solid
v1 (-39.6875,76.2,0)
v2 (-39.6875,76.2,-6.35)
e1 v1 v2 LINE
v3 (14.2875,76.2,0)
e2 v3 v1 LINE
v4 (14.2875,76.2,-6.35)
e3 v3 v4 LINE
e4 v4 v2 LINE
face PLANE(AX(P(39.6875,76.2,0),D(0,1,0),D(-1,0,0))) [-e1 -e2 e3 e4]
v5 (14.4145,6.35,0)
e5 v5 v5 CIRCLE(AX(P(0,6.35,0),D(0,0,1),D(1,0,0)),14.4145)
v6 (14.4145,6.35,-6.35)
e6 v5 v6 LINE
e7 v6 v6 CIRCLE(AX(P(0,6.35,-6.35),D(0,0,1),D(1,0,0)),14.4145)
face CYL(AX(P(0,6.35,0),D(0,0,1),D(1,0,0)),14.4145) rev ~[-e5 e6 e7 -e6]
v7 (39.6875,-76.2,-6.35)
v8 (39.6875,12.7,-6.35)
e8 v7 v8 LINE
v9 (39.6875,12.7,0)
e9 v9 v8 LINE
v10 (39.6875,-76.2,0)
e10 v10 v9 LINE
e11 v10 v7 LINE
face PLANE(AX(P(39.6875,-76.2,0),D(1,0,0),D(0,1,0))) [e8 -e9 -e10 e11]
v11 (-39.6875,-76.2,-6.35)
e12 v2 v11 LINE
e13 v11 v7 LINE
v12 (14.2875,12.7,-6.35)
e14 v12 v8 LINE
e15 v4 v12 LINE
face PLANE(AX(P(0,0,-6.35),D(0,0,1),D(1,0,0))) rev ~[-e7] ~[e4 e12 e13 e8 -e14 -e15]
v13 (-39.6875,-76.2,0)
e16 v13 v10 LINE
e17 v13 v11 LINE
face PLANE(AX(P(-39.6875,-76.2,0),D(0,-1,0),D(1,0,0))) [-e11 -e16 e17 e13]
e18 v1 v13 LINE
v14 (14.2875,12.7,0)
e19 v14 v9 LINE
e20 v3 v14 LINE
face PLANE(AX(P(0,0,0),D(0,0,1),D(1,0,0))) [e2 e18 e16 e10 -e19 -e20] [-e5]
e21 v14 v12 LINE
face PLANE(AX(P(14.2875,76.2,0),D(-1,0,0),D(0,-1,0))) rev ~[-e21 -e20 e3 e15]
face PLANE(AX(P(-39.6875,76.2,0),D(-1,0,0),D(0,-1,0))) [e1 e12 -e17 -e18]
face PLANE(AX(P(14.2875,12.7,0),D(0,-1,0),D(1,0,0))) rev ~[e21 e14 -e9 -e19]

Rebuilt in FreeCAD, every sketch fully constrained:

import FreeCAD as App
import Part
import Sketcher

V = App.Vector
Q = App.Units.Quantity

doc = App.newDocument("Part")
params = doc.addObject("Spreadsheet::Sheet", "Params")
for row, (alias, value) in enumerate([
    ("sketch1_height", "6 in"),
    ("sketch1_width", "3.125 in"),
    ("pad1_length", "0.25 in"),
    ("sketch2_diameter", "1.135 in"),
    ("sketch3_width", "1 in"),
    ("sketch3_height", "2.5 in"),
], start=1):
    params.set(f"A{row}", alias)
    params.set(f"B{row}", "=" + value)
    params.setAlias(f"B{row}", alias)

body = doc.addObject("PartDesign::Body", "Body")

# Sketch on XY plane
sketch1 = body.newObject("Sketcher::SketchObject", "Sketch")
sketch1.AttachmentSupport = (doc.getObject("XY_Plane"), [""])
sketch1.MapMode = "FlatFace"
sketch1.addGeometry([
    Part.LineSegment(V(-39.6875, 76.2, 0), V(-39.6875, -76.2, 0)),
    Part.LineSegment(V(-39.6875, -76.2, 0), V(39.6875, -76.2, 0)),
    Part.LineSegment(V(39.6875, -76.2, 0), V(39.6875, 76.2, 0)),
    Part.LineSegment(V(39.6875, 76.2, 0), V(-39.6875, 76.2, 0)),
], False)
sketch1.addConstraint([
    Sketcher.Constraint("Coincident", 0, 2, 1, 1),
    Sketcher.Constraint("Coincident", 1, 2, 2, 1),
    Sketcher.Constraint("Coincident", 2, 2, 3, 1),
    Sketcher.Constraint("Coincident", 3, 2, 0, 1),
    Sketcher.Constraint("Vertical", 0),
    Sketcher.Constraint("Horizontal", 1),
    Sketcher.Constraint("Vertical", 2),
    Sketcher.Constraint("Horizontal", 3),
    Sketcher.Constraint("Symmetric", 0, 2, 2, 2, -1, 1),
    Sketcher.Constraint("DistanceY", 0, 2, 0, 1, Q("6 in")),
    Sketcher.Constraint("DistanceX", 1, 1, 1, 2, Q("3.125 in")),
])
sketch1.setExpression("Constraints[9]", "Params.sketch1_height")
sketch1.setExpression("Constraints[10]", "Params.sketch1_width")
pad1 = body.newObject("PartDesign::Pad", "Pad")
pad1.Profile = sketch1
pad1.setExpression("Length", "Params.pad1_length")
pad1.Reversed = True

# Sketch on XY plane
sketch2 = body.newObject("Sketcher::SketchObject", "Sketch001")
sketch2.AttachmentSupport = (doc.getObject("XY_Plane"), [""])
sketch2.MapMode = "FlatFace"
sketch2.addGeometry(Part.Circle(V(0, 6.35, 0), V(0, 0, 1), 14.4145), False)
sketch2.addConstraint([
    Sketcher.Constraint("PointOnObject", 0, 3, -2),
    Sketcher.Constraint("Diameter", 0, Q("1.135 in")),
    Sketcher.Constraint("DistanceY", -1, 1, 0, 3, Q("0.25 in")),
])
sketch2.setExpression("Constraints[1]", "Params.sketch2_diameter")
pocket1 = body.newObject("PartDesign::Pocket", "Pocket")
pocket1.Profile = sketch2
pocket1.Type = "ThroughAll"

# Sketch on XY plane
sketch3 = body.newObject("Sketcher::SketchObject", "Sketch002")
sketch3.AttachmentSupport = (doc.getObject("XY_Plane"), [""])
sketch3.MapMode = "FlatFace"
sketch3.addGeometry([
    Part.LineSegment(V(39.6875, 76.2, 0), V(14.2875, 76.2, 0)),
    Part.LineSegment(V(14.2875, 76.2, 0), V(14.2875, 12.7, 0)),
    Part.LineSegment(V(14.2875, 12.7, 0), V(39.6875, 12.7, 0)),
    Part.LineSegment(V(39.6875, 12.7, 0), V(39.6875, 76.2, 0)),
], False)
sketch3.addConstraint([
    Sketcher.Constraint("Coincident", 0, 2, 1, 1),
    Sketcher.Constraint("Coincident", 1, 2, 2, 1),
    Sketcher.Constraint("Coincident", 2, 2, 3, 1),
    Sketcher.Constraint("Coincident", 3, 2, 0, 1),
    Sketcher.Constraint("Horizontal", 0),
    Sketcher.Constraint("Vertical", 1),
    Sketcher.Constraint("Horizontal", 2),
    Sketcher.Constraint("Vertical", 3),
    Sketcher.Constraint("DistanceX", 0, 2, 0, 1, Q("1 in")),
    Sketcher.Constraint("DistanceY", 1, 2, 1, 1, Q("2.5 in")),
    Sketcher.Constraint("DistanceY", -1, 1, 0, 2, Q("3 in")),
    Sketcher.Constraint("DistanceX", -1, 1, 0, 2, Q("0.5625 in")),
])
sketch3.setExpression("Constraints[8]", "Params.sketch3_width")
sketch3.setExpression("Constraints[9]", "Params.sketch3_height")
pocket2 = body.newObject("PartDesign::Pocket", "Pocket001")
pocket2.Profile = sketch3
pocket2.Type = "ThroughAll"

doc.recompute()
